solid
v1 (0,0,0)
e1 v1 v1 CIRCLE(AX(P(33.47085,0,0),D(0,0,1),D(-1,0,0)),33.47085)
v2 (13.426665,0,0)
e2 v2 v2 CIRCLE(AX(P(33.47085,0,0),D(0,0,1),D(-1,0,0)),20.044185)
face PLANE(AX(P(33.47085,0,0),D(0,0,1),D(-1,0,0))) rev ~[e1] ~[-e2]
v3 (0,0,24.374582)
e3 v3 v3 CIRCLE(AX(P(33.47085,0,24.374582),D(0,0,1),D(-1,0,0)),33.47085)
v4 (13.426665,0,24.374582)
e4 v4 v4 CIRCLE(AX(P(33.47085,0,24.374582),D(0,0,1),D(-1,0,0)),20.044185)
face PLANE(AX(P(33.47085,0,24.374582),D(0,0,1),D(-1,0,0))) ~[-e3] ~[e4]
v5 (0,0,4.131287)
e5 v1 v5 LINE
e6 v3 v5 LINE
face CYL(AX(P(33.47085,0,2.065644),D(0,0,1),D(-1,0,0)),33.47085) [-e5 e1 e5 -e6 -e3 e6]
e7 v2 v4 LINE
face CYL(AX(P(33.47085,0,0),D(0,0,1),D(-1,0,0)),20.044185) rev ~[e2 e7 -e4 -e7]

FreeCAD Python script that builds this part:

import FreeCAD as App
import Part
import Sketcher

V = App.Vector
Q = App.Units.Quantity

doc = App.newDocument("Part")
body = doc.addObject("PartDesign::Body", "Body")

# Sketch on XZ plane
sketch1 = body.newObject("Sketcher::SketchObject", "Sketch")
sketch1.AttachmentSupport = (doc.getObject("XZ_Plane"), [""])
sketch1.MapMode = "FlatFace"
sketch1.addGeometry([
    Part.LineSegment(V(0, 4.1, 0), V(0, 0, 0)),  # 0
    Part.LineSegment(V(0, 0, 0), V(6.7, 0, 0)),  # 1
    Part.LineSegment(V(6.7, 0, 0), V(13.4, 0, 0)),  # 2
    Part.LineSegment(V(13.4, 0, 0), V(13.4, 24.4, 0)),  # 3
    Part.LineSegment(V(13.4, 24.4, 0), V(0, 24.4, 0)),  # 4
    Part.LineSegment(V(0, 24.4, 0), V(0, 4.1, 0)),  # 5
], False)
sketch1.addGeometry(Part.LineSegment(V(33.5, 0, 0), V(33.5, 24.4, 0)), True)  # axis
sketch1.addConstraint([
    Sketcher.Constraint("Coincident", 0, 2, 1, 1),
    Sketcher.Constraint("Coincident", 1, 2, 2, 1),
    Sketcher.Constraint("Coincident", 2, 2, 3, 1),
    Sketcher.Constraint("Coincident", 3, 2, 4, 1),
    Sketcher.Constraint("Coincident", 4, 2, 5, 1),
    Sketcher.Constraint("Coincident", 5, 2, 0, 1),
    Sketcher.Constraint("Vertical", 0),
    Sketcher.Constraint("Horizontal", 1),
    Sketcher.Constraint("Horizontal", 2),
    Sketcher.Constraint("Vertical", 3),
    Sketcher.Constraint("Horizontal", 4),
    Sketcher.Constraint("Vertical", 5),
    Sketcher.Constraint("Vertical", 6),
    Sketcher.Constraint("Coincident", 0, 2, -1, 1),
    Sketcher.Constraint("PointOnObject", 6, 1, -1),
    Sketcher.Constraint("Horizontal", 4, 2, 6, 2),
    Sketcher.Constraint("Equal", 1, 2),
    Sketcher.Constraint("DistanceY", 3, 1, 3, 2, Q("24.374582 mm")),
    Sketcher.Constraint("DistanceX", 1, 1, 1, 2, Q("6.713333 mm")),
    Sketcher.Constraint("DistanceY", 0, 2, 0, 1, Q("4.131287 mm")),
    Sketcher.Constraint("DistanceX", -1, 1, 6, 1, Q("33.47085 mm")),
])
revolution = body.newObject("PartDesign::Revolution", "Revolution")
revolution.Profile = sketch1
revolution.ReferenceAxis = (sketch1, ["Axis0"])
revolution.Angle = 360

doc.recompute()
